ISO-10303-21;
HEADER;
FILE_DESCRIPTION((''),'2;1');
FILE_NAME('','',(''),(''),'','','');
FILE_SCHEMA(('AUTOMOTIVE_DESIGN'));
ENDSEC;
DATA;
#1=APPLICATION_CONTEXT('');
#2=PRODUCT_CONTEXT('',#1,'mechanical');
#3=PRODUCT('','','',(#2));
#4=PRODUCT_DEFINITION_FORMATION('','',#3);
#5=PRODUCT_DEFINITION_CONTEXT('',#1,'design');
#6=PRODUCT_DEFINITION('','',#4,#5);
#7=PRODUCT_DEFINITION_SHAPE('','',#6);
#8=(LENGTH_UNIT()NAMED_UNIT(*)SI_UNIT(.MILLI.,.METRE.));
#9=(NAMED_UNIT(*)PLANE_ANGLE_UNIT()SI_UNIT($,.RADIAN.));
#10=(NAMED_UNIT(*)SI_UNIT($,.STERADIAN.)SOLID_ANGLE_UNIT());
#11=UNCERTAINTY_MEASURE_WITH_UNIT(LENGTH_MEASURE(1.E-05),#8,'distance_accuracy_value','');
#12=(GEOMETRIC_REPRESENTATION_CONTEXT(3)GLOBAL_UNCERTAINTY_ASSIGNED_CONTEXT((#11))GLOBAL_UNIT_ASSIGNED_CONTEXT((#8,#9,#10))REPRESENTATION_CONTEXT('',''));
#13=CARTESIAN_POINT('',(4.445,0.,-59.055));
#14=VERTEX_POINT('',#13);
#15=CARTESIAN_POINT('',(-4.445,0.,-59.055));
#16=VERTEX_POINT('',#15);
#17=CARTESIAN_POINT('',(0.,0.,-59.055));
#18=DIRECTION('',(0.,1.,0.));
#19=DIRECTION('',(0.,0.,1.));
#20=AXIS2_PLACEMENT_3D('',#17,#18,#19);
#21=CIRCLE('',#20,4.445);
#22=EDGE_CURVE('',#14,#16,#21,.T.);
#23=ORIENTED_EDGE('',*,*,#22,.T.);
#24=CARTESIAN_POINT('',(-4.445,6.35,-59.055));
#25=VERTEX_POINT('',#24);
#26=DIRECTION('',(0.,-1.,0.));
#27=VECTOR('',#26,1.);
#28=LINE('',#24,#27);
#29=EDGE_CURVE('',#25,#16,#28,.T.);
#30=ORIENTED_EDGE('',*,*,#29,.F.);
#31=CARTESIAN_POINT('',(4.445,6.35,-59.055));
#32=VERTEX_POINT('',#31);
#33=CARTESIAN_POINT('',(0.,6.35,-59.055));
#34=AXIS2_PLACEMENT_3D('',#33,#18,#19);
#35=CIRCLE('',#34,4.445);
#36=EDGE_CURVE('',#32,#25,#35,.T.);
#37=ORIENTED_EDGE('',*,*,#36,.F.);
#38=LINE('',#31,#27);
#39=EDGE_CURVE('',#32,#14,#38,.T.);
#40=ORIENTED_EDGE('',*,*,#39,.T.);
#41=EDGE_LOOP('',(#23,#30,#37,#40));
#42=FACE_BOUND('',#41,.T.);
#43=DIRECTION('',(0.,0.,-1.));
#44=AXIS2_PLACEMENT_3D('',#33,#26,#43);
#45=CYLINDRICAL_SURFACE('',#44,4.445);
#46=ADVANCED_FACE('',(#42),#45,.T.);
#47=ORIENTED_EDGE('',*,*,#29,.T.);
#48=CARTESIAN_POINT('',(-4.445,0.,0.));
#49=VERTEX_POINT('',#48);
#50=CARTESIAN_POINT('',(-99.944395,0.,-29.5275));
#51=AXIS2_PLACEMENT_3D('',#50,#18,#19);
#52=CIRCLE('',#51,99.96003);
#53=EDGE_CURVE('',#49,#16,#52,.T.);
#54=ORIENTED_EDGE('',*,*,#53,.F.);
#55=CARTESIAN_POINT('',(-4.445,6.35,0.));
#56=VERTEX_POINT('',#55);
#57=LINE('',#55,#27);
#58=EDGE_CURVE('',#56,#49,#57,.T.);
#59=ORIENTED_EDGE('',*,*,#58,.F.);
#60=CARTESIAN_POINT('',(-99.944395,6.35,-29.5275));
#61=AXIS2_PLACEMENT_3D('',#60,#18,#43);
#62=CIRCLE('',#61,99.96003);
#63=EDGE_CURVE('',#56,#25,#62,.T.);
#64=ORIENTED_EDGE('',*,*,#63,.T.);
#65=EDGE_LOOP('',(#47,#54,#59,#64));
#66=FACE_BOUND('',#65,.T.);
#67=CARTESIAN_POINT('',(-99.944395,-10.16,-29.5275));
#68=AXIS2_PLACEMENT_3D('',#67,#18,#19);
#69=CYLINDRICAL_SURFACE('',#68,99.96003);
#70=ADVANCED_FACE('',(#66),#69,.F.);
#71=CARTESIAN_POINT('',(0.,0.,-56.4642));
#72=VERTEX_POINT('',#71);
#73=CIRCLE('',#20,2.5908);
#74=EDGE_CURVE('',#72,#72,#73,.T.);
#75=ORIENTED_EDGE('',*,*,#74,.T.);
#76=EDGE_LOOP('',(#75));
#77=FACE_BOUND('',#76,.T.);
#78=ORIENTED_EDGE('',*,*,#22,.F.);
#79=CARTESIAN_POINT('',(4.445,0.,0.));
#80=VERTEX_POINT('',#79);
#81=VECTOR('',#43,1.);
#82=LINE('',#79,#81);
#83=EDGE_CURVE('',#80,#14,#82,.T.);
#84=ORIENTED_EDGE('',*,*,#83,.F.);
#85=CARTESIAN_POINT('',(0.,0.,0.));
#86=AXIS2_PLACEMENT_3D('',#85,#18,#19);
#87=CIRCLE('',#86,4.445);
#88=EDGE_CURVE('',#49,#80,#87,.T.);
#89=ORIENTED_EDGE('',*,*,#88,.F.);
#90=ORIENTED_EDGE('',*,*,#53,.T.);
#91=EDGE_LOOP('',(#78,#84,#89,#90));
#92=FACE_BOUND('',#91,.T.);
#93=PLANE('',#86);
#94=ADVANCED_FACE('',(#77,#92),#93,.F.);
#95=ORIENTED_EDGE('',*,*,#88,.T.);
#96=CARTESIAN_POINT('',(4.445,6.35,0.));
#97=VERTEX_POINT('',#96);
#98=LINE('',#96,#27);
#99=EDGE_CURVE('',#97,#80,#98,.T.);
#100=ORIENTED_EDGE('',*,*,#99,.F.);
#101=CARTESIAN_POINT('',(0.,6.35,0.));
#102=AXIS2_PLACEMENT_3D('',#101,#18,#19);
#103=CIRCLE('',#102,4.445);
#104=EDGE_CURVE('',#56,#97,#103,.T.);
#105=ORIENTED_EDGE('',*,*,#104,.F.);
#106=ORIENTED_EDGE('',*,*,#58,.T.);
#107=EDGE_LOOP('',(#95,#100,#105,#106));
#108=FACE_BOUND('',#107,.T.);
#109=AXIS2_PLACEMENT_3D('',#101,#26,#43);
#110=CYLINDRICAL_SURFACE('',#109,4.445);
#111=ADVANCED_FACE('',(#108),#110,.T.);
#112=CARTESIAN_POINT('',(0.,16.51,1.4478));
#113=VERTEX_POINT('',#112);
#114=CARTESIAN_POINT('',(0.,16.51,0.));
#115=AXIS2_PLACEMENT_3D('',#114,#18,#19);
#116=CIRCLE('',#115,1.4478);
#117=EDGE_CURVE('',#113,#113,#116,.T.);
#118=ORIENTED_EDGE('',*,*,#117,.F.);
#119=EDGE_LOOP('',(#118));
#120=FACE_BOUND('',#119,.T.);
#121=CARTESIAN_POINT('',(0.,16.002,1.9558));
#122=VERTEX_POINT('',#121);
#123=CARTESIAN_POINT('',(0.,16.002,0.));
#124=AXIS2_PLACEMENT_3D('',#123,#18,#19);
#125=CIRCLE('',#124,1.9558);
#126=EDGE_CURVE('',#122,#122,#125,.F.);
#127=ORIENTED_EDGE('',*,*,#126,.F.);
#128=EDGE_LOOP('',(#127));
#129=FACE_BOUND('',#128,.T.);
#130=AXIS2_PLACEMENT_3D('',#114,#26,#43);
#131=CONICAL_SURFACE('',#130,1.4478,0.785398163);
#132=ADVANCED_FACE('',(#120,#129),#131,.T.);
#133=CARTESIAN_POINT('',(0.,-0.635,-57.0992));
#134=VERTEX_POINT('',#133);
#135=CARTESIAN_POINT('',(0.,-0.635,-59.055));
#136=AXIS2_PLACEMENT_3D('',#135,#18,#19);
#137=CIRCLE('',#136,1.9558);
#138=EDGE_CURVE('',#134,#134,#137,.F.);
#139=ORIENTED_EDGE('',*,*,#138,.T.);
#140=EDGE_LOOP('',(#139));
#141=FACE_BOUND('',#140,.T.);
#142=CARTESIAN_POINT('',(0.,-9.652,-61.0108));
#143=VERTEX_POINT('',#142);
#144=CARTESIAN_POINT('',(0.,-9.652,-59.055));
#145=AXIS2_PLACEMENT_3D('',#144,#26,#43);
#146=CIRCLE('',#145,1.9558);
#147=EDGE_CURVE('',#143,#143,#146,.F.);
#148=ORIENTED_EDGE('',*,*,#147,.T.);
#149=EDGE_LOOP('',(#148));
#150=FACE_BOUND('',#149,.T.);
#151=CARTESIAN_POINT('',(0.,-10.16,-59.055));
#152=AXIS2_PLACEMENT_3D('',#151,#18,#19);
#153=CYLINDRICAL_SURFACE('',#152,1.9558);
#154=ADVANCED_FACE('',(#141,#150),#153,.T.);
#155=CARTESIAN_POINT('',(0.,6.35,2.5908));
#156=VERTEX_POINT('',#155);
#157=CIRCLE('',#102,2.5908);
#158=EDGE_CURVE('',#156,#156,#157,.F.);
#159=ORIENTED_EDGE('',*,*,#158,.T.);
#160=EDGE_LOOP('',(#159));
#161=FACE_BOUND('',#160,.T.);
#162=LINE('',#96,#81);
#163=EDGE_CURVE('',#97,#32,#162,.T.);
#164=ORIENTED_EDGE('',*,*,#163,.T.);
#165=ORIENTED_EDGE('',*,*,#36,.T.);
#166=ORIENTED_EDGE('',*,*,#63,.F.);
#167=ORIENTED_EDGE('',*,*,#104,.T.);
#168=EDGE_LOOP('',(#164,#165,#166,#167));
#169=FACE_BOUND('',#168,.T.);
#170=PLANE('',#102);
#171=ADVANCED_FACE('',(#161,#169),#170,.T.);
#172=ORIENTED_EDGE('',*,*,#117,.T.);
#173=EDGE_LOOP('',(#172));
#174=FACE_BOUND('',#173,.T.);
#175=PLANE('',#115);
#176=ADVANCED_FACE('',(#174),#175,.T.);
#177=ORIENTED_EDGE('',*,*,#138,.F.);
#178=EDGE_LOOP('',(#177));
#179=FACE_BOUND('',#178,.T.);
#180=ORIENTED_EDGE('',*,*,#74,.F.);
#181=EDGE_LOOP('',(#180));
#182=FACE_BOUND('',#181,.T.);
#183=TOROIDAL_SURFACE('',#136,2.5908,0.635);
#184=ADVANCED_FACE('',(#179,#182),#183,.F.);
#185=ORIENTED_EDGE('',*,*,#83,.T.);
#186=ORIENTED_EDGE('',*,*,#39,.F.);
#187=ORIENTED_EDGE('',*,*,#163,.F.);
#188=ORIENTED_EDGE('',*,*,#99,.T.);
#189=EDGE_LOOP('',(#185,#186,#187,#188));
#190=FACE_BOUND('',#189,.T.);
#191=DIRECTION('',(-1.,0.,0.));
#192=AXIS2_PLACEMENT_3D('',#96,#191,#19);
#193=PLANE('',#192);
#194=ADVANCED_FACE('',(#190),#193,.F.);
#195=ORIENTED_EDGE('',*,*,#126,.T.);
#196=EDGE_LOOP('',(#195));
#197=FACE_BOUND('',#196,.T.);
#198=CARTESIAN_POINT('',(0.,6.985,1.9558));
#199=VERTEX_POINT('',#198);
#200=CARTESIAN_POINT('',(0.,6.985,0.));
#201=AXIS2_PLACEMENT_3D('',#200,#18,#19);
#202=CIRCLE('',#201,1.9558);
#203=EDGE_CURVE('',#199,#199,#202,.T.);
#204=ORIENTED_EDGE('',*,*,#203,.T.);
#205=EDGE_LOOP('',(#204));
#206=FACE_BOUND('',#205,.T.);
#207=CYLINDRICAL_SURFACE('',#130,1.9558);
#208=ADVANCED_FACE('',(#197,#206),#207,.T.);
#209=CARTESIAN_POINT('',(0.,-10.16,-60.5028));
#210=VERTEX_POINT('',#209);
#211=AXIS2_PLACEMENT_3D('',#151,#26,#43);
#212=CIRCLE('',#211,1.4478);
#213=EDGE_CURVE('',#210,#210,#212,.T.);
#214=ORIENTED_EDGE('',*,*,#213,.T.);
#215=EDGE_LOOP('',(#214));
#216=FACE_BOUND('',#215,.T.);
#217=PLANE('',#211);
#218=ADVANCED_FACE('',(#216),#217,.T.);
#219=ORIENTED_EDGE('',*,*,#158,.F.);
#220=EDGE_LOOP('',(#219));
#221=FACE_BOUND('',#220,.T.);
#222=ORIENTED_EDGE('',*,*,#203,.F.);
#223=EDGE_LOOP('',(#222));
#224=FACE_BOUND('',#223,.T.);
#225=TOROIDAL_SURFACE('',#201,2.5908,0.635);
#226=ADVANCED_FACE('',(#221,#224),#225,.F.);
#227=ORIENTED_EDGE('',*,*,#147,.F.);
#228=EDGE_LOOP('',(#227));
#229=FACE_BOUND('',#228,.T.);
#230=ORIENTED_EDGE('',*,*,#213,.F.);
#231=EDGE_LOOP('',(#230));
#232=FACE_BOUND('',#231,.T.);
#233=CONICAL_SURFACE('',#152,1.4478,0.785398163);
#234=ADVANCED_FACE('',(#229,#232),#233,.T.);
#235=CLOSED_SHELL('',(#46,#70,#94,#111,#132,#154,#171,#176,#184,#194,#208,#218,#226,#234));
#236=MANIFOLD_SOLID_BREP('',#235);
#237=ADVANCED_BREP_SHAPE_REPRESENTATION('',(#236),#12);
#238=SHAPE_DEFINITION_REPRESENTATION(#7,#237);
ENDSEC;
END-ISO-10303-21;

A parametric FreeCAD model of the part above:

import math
import FreeCAD as App
import Part
import Sketcher
from FreeCAD import Vector
Q = App.Units.Quantity


def edges_at(feature, points):
    """Names of the edges that pass closest to the given points."""
    edges = feature.Shape.Edges
    near = lambda p: min(range(len(edges)), key=lambda i: edges[i].distToShape(Part.Vertex(*p))[0])
    return sorted({f"Edge{near(p) + 1}" for p in points})

doc = App.newDocument("Part")
body = doc.addObject("PartDesign::Body", "Body")

sketch1 = body.newObject("Sketcher::SketchObject", "Sketch")
sketch1.AttachmentSupport = (doc.getObject("XZ_Plane"), [""])
sketch1.MapMode = "FlatFace"
sketch1.addGeometry([
    Part.LineSegment(Vector(-4.4, -59.1, 0), Vector(-4.4, 0, 0)),
    Part.ArcOfCircle(Part.Circle(Vector(0, 0, 0), Vector(0, 0, 1), 4.4), math.radians(0), math.radians(180)),
    Part.LineSegment(Vector(4.4, 0, 0), Vector(4.4, -59.1, 0)),
    Part.ArcOfCircle(Part.Circle(Vector(0, -59.1, 0), Vector(0, 0, 1), 4.4), math.radians(180), math.radians(360)),
], False)
sketch1.addConstraint([
    Sketcher.Constraint("Tangent", 0, 2, 1, 2),
    Sketcher.Constraint("Tangent", 1, 1, 2, 1),
    Sketcher.Constraint("Tangent", 2, 2, 3, 2),
    Sketcher.Constraint("Tangent", 3, 1, 0, 1),
    Sketcher.Constraint("Vertical", 0),
    Sketcher.Constraint("Vertical", 2),
    Sketcher.Constraint("Coincident", 1, 3, -1, 1),
    Sketcher.Constraint("Radius", 1, Q("0.175 in")),
    Sketcher.Constraint("DistanceY", 0, 1, 0, 2, Q("2.325 in")),
])
pad1 = body.newObject("PartDesign::Pad", "Pad")
pad1.Profile = sketch1
pad1.Length = Q("0.25 in")
pad1.Reversed = True

sketch2 = body.newObject("Sketcher::SketchObject", "Sketch001")
sketch2.AttachmentSupport = (doc.getObject("XZ_Plane"), [""])
sketch2.MapMode = "FlatFace"
sketch2.AttachmentOffset = App.Placement(Vector(0, 0, -0.25 * 25.4), App.Rotation())
sketch2.addGeometry(Part.Circle(Vector(0, 0, 0), Vector(0, 0, 1), 2), False)
sketch2.addConstraint([
    Sketcher.Constraint("Coincident", 0, 3, -1, 1),
    Sketcher.Constraint("Diameter", 0, Q("0.154 in")),
])
pad2 = body.newObject("PartDesign::Pad", "Pad001")
pad2.Profile = sketch2
pad2.Length = Q("0.4 in")
pad2.Reversed = True

sketch3 = body.newObject("Sketcher::SketchObject", "Sketch002")
sketch3.AttachmentSupport = (doc.getObject("XZ_Plane"), [""])
sketch3.MapMode = "FlatFace"
sketch3.addGeometry(Part.Circle(Vector(0, -59.1, 0), Vector(0, 0, 1), 2), False)
sketch3.addConstraint([
    Sketcher.Constraint("PointOnObject", 0, 3, -2),
    Sketcher.Constraint("Diameter", 0, Q("0.154 in")),
    Sketcher.Constraint("DistanceY", 0, 3, -1, 1, Q("2.325 in")),
])
pad3 = body.newObject("PartDesign::Pad", "Pad002")
pad3.Profile = sketch3
pad3.Length = Q("0.4 in")

sketch4 = body.newObject("Sketcher::SketchObject", "Sketch003")
sketch4.AttachmentSupport = (doc.getObject("XZ_Plane"), [""])
sketch4.MapMode = "FlatFace"
sketch4.AttachmentOffset = App.Placement(Vector(0, 0, -0.25 * 25.4), App.Rotation())
sketch4.addGeometry([
    Part.LineSegment(Vector(-4, -59, 0), Vector(-4, 0, 0)),
    Part.ArcOfCircle(Part.Circle(Vector(-100, -30, 0), Vector(0, 0, 1), 100), math.radians(-17), math.radians(17)),
], False)
sketch4.addConstraint([
    Sketcher.Constraint("Coincident", 0, 1, 1, 1),
    Sketcher.Constraint("Coincident", 1, 2, 0, 2),
    Sketcher.Constraint("Vertical", 0),
    Sketcher.Constraint("PointOnObject", 1, 2, -1),
    Sketcher.Constraint("DistanceY", 0, 1, 0, 2, Q("2.325 in")),
    Sketcher.Constraint("DistanceX", 0, 1, -1, 1, Q("0.175 in")),
    Sketcher.Constraint("Radius", 1, Q("99.96003 mm")),
])
pocket1 = body.newObject("PartDesign::Pocket", "Pocket")
pocket1.Profile = sketch4
pocket1.Type = "ThroughAll"
pocket1.Reversed = True
doc.recompute()

fillet = body.newObject("PartDesign::Fillet", "Fillet")
fillet.Base = (pocket1, edges_at(pocket1, [(0, 6.35, -1.956), (0, 0, -61.011)]))
fillet.Radius = Q("0.025 in")
doc.recompute()

chamfer = body.newObject("PartDesign::Chamfer", "Chamfer")
chamfer.Base = (fillet, edges_at(fillet, [(0, 16.51, -1.956), (0, -10.16, -61.011)]))
chamfer.Size = Q("0.02 in")

doc.recompute()
